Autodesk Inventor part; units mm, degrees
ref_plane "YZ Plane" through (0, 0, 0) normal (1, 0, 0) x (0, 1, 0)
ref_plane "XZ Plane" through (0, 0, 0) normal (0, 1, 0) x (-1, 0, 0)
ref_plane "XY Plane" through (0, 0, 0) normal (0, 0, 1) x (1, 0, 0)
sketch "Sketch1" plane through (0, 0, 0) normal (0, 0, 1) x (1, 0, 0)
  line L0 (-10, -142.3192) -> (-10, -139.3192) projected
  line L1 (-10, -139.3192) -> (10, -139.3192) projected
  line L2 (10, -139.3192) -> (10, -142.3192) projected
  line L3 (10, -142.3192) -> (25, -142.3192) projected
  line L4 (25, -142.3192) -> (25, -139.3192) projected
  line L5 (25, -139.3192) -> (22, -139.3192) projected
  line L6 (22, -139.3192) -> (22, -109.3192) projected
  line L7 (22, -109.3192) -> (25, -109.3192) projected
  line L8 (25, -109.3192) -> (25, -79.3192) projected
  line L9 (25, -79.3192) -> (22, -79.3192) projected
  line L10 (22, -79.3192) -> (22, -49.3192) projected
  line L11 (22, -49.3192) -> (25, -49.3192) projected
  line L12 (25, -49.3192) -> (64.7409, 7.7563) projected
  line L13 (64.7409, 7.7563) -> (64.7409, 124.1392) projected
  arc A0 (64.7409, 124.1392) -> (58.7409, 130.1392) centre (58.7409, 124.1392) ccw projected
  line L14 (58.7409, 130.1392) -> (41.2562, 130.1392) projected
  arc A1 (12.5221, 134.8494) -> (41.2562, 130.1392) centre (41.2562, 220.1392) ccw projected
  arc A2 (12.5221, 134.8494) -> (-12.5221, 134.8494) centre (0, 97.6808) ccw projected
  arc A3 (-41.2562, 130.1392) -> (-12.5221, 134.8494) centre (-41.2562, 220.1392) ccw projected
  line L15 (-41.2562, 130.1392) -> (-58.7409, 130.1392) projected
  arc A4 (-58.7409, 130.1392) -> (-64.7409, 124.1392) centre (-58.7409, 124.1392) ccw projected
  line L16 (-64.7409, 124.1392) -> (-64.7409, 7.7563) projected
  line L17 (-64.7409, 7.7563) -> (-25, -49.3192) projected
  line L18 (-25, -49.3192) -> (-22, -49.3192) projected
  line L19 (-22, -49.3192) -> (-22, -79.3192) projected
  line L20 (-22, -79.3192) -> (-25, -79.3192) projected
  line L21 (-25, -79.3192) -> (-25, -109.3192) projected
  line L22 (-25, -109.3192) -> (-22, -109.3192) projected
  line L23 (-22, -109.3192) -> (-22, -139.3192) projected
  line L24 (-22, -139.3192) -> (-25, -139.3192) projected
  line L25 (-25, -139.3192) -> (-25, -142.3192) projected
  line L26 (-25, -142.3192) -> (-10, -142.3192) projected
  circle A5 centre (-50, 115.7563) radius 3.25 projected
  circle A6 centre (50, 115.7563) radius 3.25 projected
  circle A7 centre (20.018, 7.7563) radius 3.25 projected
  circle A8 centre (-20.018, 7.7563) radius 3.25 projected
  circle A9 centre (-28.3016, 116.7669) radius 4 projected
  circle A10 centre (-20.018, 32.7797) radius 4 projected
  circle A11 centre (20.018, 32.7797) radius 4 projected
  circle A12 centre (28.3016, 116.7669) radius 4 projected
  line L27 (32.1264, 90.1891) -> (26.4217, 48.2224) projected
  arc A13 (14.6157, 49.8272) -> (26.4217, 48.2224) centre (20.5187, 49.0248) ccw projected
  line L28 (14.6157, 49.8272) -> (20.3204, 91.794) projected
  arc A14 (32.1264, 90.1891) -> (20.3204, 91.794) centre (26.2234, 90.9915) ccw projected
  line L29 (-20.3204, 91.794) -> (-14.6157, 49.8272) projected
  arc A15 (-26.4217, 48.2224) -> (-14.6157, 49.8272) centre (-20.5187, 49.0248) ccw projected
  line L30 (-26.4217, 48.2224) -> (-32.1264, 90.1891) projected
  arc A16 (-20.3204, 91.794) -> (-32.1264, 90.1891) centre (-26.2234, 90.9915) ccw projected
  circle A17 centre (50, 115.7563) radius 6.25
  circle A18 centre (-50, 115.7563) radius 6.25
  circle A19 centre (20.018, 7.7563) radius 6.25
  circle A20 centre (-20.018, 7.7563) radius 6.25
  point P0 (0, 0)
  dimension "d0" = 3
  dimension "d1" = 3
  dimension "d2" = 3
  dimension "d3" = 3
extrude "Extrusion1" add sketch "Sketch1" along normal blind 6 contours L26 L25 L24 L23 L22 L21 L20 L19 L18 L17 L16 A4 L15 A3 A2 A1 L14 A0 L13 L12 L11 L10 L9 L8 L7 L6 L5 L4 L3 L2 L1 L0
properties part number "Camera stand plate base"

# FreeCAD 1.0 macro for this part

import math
import FreeCAD as App
import Part
import Sketcher

V = App.Vector
Q = App.Units.Quantity

doc = App.newDocument("Part")
body = doc.addObject("PartDesign::Body", "Body")

# Sketch on XY plane
sketch1 = body.newObject("Sketcher::SketchObject", "Sketch")
sketch1.AttachmentSupport = (doc.getObject("XY_Plane"), [""])
sketch1.MapMode = "FlatFace"
sketch1.addGeometry([
    Part.LineSegment(V(-25, -142.3, 0), V(-10, -142.3, 0)),  # 0
    Part.LineSegment(V(-10, -142.3, 0), V(-10, -139.3, 0)),  # 1
    Part.LineSegment(V(-10, -139.3, 0), V(10, -139.3, 0)),  # 2
    Part.LineSegment(V(10, -139.3, 0), V(10, -142.3, 0)),  # 3
    Part.LineSegment(V(10, -142.3, 0), V(25, -142.3, 0)),  # 4
    Part.LineSegment(V(25, -142.3, 0), V(25, -139.3, 0)),  # 5
    Part.LineSegment(V(25, -139.3, 0), V(22, -139.3, 0)),  # 6
    Part.LineSegment(V(22, -139.3, 0), V(22, -109.3, 0)),  # 7
    Part.LineSegment(V(22, -109.3, 0), V(25, -109.3, 0)),  # 8
    Part.LineSegment(V(25, -109.3, 0), V(25, -79.3, 0)),  # 9
    Part.LineSegment(V(25, -79.3, 0), V(22, -79.3, 0)),  # 10
    Part.LineSegment(V(22, -79.3, 0), V(22, -49.3, 0)),  # 11
    Part.LineSegment(V(22, -49.3, 0), V(25, -49.3, 0)),  # 12
    Part.LineSegment(V(25, -49.3, 0), V(64.7, 7.8, 0)),  # 13
    Part.LineSegment(V(64.7, 7.8, 0), V(64.7, 124.1, 0)),  # 14
    Part.ArcOfCircle(Part.Circle(V(58.7, 124.1, 0), V(0, 0, 1), 6), math.radians(0), math.radians(90)),  # 15
    Part.LineSegment(V(58.7, 130.1, 0), V(41.3, 130.1, 0)),  # 16
    Part.ArcOfCircle(Part.Circle(V(41.3, 220.1, 0), V(0, 0, 1), 90), math.radians(-108.62), math.radians(-90)),  # 17
    Part.ArcOfCircle(Part.Circle(V(0, 97.7, 0), V(0, 0, 1), 39.2), math.radians(71), math.radians(109)),  # 18
    Part.ArcOfCircle(Part.Circle(V(-41.3, 220.1, 0), V(0, 0, 1), 90), math.radians(-90), math.radians(-71.38)),  # 19
    Part.LineSegment(V(-41.3, 130.1, 0), V(-58.7, 130.1, 0)),  # 20
    Part.ArcOfCircle(Part.Circle(V(-58.7, 124.1, 0), V(0, 0, 1), 6), math.radians(90), math.radians(180)),  # 21
    Part.LineSegment(V(-64.7, 124.1, 0), V(-64.7, 7.8, 0)),  # 22
    Part.LineSegment(V(-64.7, 7.8, 0), V(-25, -49.3, 0)),  # 23
    Part.LineSegment(V(-25, -49.3, 0), V(-22, -49.3, 0)),  # 24
    Part.LineSegment(V(-22, -49.3, 0), V(-22, -79.3, 0)),  # 25
    Part.LineSegment(V(-22, -79.3, 0), V(-25, -79.3, 0)),  # 26
    Part.LineSegment(V(-25, -79.3, 0), V(-25, -109.3, 0)),  # 27
    Part.LineSegment(V(-25, -109.3, 0), V(-22, -109.3, 0)),  # 28
    Part.LineSegment(V(-22, -109.3, 0), V(-22, -139.3, 0)),  # 29
    Part.LineSegment(V(-22, -139.3, 0), V(-25, -139.3, 0)),  # 30
    Part.LineSegment(V(-25, -139.3, 0), V(-25, -142.3, 0)),  # 31
    Part.Circle(V(-20, 7.8, 0), V(0, 0, 1), 6.2),  # 32
    Part.Circle(V(-20, 32.8, 0), V(0, 0, 1), 4),  # 33
    Part.Circle(V(-50, 115.8, 0), V(0, 0, 1), 6.2),  # 34
    Part.ArcOfCircle(Part.Circle(V(-26.2, 91, 0), V(0, 0, 1), 6), math.radians(8), math.radians(188)),  # 35
    Part.LineSegment(V(-20.3, 91.8, 0), V(-14.6, 49.8, 0)),  # 36
    Part.ArcOfCircle(Part.Circle(V(-20.5, 49, 0), V(0, 0, 1), 6), math.radians(-172), math.radians(8)),  # 37
    Part.LineSegment(V(-26.4, 48.2, 0), V(-32.1, 90.2, 0)),  # 38
    Part.Circle(V(-28.3, 116.8, 0), V(0, 0, 1), 4),  # 39
    Part.Circle(V(20, 7.8, 0), V(0, 0, 1), 6.2),  # 40
    Part.Circle(V(20, 32.8, 0), V(0, 0, 1), 4),  # 41
    Part.ArcOfCircle(Part.Circle(V(26.2, 91, 0), V(0, 0, 1), 6), math.radians(-8), math.radians(172)),  # 42
    Part.LineSegment(V(32.1, 90.2, 0), V(26.4, 48.2, 0)),  # 43
    Part.ArcOfCircle(Part.Circle(V(20.5, 49, 0), V(0, 0, 1), 6), math.radians(172), math.radians(352)),  # 44
    Part.LineSegment(V(14.6, 49.8, 0), V(20.3, 91.8, 0)),  # 45
    Part.Circle(V(28.3, 116.8, 0), V(0, 0, 1), 4),  # 46
    Part.Circle(V(50, 115.8, 0), V(0, 0, 1), 6.2),  # 47
], False)
sketch1.addConstraint([
    Sketcher.Constraint("Coincident", 0, 2, 1, 1),
    Sketcher.Constraint("Coincident", 1, 2, 2, 1),
    Sketcher.Constraint("Coincident", 2, 2, 3, 1),
    Sketcher.Constraint("Coincident", 3, 2, 4, 1),
    Sketcher.Constraint("Coincident", 4, 2, 5, 1),
    Sketcher.Constraint("Coincident", 5, 2, 6, 1),
    Sketcher.Constraint("Coincident", 6, 2, 7, 1),
    Sketcher.Constraint("Coincident", 7, 2, 8, 1),
    Sketcher.Constraint("Coincident", 8, 2, 9, 1),
    Sketcher.Constraint("Coincident", 9, 2, 10, 1),
    Sketcher.Constraint("Coincident", 10, 2, 11, 1),
    Sketcher.Constraint("Coincident", 11, 2, 12, 1),
    Sketcher.Constraint("Coincident", 12, 2, 13, 1),
    Sketcher.Constraint("Coincident", 13, 2, 14, 1),
    Sketcher.Constraint("Tangent", 14, 2, 15, 1),
    Sketcher.Constraint("Tangent", 15, 2, 16, 1),
    Sketcher.Constraint("Tangent", 16, 2, 17, 2),
    Sketcher.Constraint("Tangent", 17, 1, 18, 1),
    Sketcher.Constraint("Tangent", 18, 2, 19, 2),
    Sketcher.Constraint("Tangent", 19, 1, 20, 1),
    Sketcher.Constraint("Tangent", 20, 2, 21, 1),
    Sketcher.Constraint("Tangent", 21, 2, 22, 1),
    Sketcher.Constraint("Coincident", 22, 2, 23, 1),
    Sketcher.Constraint("Coincident", 23, 2, 24, 1),
    Sketcher.Constraint("Coincident", 24, 2, 25, 1),
    Sketcher.Constraint("Coincident", 25, 2, 26, 1),
    Sketcher.Constraint("Coincident", 26, 2, 27, 1),
    Sketcher.Constraint("Coincident", 27, 2, 28, 1),
    Sketcher.Constraint("Coincident", 28, 2, 29, 1),
    Sketcher.Constraint("Coincident", 29, 2, 30, 1),
    Sketcher.Constraint("Coincident", 30, 2, 31, 1),
    Sketcher.Constraint("Coincident", 31, 2, 0, 1),
    Sketcher.Constraint("Tangent", 35, 1, 36, 1),
    Sketcher.Constraint("Tangent", 36, 2, 37, 2),
    Sketcher.Constraint("Tangent", 37, 1, 38, 1),
    Sketcher.Constraint("Tangent", 38, 2, 35, 2),
    Sketcher.Constraint("Tangent", 42, 1, 43, 1),
    Sketcher.Constraint("Tangent", 43, 2, 44, 2),
    Sketcher.Constraint("Tangent", 44, 1, 45, 1),
    Sketcher.Constraint("Tangent", 45, 2, 42, 2),
    Sketcher.Constraint("Horizontal", 0),
    Sketcher.Constraint("Vertical", 1),
    Sketcher.Constraint("Horizontal", 2),
    Sketcher.Constraint("Vertical", 3),
    Sketcher.Constraint("Horizontal", 4),
    Sketcher.Constraint("Vertical", 5),
    Sketcher.Constraint("Horizontal", 6),
    Sketcher.Constraint("Vertical", 7),
    Sketcher.Constraint("Horizontal", 8),
    Sketcher.Constraint("Vertical", 9),
    Sketcher.Constraint("Horizontal", 10),
    Sketcher.Constraint("Vertical", 11),
    Sketcher.Constraint("Horizontal", 12),
    Sketcher.Constraint("Vertical", 14),
    Sketcher.Constraint("Horizontal", 16),
    Sketcher.Constraint("Horizontal", 20),
    Sketcher.Constraint("Vertical", 22),
    Sketcher.Constraint("Horizontal", 24),
    Sketcher.Constraint("Vertical", 25),
    Sketcher.Constraint("Horizontal", 26),
    Sketcher.Constraint("Vertical", 27),
    Sketcher.Constraint("Horizontal", 28),
    Sketcher.Constraint("Vertical", 29),
    Sketcher.Constraint("Horizontal", 30),
    Sketcher.Constraint("Vertical", 31),
    Sketcher.Constraint("Equal", 17, 19),
    Sketcher.Constraint("Equal", 15, 21),
    Sketcher.Constraint("Equal", 32, 34),
    Sketcher.Constraint("Equal", 35, 37),
    Sketcher.Constraint("Equal", 33, 39),
    Sketcher.Constraint("Equal", 34, 40),
    Sketcher.Constraint("Equal", 39, 41),
    Sketcher.Constraint("Equal", 37, 42),
    Sketcher.Constraint("Equal", 42, 44),
    Sketcher.Constraint("Equal", 41, 46),
    Sketcher.Constraint("Equal", 40, 47),
    Sketcher.Constraint("Symmetric", 17, 3, 19, 3, -2),
    Sketcher.Constraint("Symmetric", 32, 3, 40, 3, -2),
    Sketcher.Constraint("Symmetric", 33, 3, 41, 3, -2),
    Sketcher.Constraint("Symmetric", 35, 3, 42, 3, -2),
    Sketcher.Constraint("Symmetric", 37, 3, 44, 3, -2),
    Sketcher.Constraint("Symmetric", 39, 3, 46, 3, -2),
    Sketcher.Constraint("Symmetric", 34, 3, 47, 3, -2),
    Sketcher.Constraint("Symmetric", 0, 2, 3, 2, -2),
    Sketcher.Constraint("Symmetric", 13, 2, 22, 2, -2),
    Sketcher.Constraint("Symmetric", 12, 2, 23, 2, -2),
    Sketcher.Constraint("Symmetric", 10, 2, 25, 2, -2),
    Sketcher.Constraint("Symmetric", 8, 2, 27, 2, -2),
    Sketcher.Constraint("Symmetric", 6, 2, 29, 2, -2),
    Sketcher.Constraint("Horizontal", 2, 2, 5, 2),
    Sketcher.Constraint("Horizontal", 40, 3, 13, 2),
    Sketcher.Constraint("Vertical", 32, 3, 33, 3),
    Sketcher.Constraint("Vertical", 5, 2, 8, 2),
    Sketcher.Constraint("Vertical", 7, 2, 10, 2),
    Sketcher.Constraint("Vertical", 9, 2, 12, 2),
    Sketcher.Constraint("Vertical", 27, 2, 30, 2),
    Sketcher.Constraint("Equal", 30, 1),
    Sketcher.Constraint("Equal", 7, 9),
    Sketcher.Constraint("Equal", 9, 11),
    Sketcher.Constraint("DistanceX", 6, 2, 6, 1, 3.0),
    Sketcher.Constraint("Diameter", 33, 8.0),
    Sketcher.Constraint("Radius", 15, 6.0),
    Sketcher.Constraint("Radius", 17, 90.0),
    Sketcher.Constraint("Diameter", 32, 12.5),
    Sketcher.Constraint("DistanceX", 0, 1, 0, 2, 15.0),
    Sketcher.Constraint("DistanceX", 2, 1, 2, 2, 20.0),
    Sketcher.Constraint("DistanceY", 7, 1, 7, 2, 30.0),
    Sketcher.Constraint("DistanceX", 34, 3, -1, 1, 50.0),
    Sketcher.Constraint("Angle", 13, Q("55.151 deg")),
    Sketcher.Constraint("Angle", 36, Q("-82.259 deg")),
    Sketcher.Constraint("Radius", 18, 39.2213),
    Sketcher.Constraint("Radius", 35, 5.9573),
    Sketcher.Constraint("DistanceY", 14, 1, 14, 2, 116.383),
    Sketcher.Constraint("DistanceY", 42, 1, 16, 2, 39.95),
    Sketcher.Constraint("DistanceX", 16, 2, 16, 1, 17.4847),
    Sketcher.Constraint("DistanceX", -1, 1, 15, 3, 58.741),
    Sketcher.Constraint("DistanceX", 32, 3, -1, 1, 20.018),
    Sketcher.Constraint("DistanceY", -1, 1, 39, 3, 116.767),
    Sketcher.Constraint("DistanceY", -1, 1, 35, 1, 91.794),
    Sketcher.Constraint("DistanceY", 33, 3, 18, 3, 64.901),
    Sketcher.Constraint("DistanceY", 34, 3, 21, 3, 8.383),
    Sketcher.Constraint("DistanceY", 33, 3, 37, 3, 16.245),
    Sketcher.Constraint("DistanceX", 39, 3, 37, 3, 7.783),
    Sketcher.Constraint("DistanceX", 39, 3, 42, 3, 54.525),
])
pad1 = body.newObject("PartDesign::Pad", "Pad")
pad1.Profile = sketch1
pad1.Length = 6

doc.recompute()
